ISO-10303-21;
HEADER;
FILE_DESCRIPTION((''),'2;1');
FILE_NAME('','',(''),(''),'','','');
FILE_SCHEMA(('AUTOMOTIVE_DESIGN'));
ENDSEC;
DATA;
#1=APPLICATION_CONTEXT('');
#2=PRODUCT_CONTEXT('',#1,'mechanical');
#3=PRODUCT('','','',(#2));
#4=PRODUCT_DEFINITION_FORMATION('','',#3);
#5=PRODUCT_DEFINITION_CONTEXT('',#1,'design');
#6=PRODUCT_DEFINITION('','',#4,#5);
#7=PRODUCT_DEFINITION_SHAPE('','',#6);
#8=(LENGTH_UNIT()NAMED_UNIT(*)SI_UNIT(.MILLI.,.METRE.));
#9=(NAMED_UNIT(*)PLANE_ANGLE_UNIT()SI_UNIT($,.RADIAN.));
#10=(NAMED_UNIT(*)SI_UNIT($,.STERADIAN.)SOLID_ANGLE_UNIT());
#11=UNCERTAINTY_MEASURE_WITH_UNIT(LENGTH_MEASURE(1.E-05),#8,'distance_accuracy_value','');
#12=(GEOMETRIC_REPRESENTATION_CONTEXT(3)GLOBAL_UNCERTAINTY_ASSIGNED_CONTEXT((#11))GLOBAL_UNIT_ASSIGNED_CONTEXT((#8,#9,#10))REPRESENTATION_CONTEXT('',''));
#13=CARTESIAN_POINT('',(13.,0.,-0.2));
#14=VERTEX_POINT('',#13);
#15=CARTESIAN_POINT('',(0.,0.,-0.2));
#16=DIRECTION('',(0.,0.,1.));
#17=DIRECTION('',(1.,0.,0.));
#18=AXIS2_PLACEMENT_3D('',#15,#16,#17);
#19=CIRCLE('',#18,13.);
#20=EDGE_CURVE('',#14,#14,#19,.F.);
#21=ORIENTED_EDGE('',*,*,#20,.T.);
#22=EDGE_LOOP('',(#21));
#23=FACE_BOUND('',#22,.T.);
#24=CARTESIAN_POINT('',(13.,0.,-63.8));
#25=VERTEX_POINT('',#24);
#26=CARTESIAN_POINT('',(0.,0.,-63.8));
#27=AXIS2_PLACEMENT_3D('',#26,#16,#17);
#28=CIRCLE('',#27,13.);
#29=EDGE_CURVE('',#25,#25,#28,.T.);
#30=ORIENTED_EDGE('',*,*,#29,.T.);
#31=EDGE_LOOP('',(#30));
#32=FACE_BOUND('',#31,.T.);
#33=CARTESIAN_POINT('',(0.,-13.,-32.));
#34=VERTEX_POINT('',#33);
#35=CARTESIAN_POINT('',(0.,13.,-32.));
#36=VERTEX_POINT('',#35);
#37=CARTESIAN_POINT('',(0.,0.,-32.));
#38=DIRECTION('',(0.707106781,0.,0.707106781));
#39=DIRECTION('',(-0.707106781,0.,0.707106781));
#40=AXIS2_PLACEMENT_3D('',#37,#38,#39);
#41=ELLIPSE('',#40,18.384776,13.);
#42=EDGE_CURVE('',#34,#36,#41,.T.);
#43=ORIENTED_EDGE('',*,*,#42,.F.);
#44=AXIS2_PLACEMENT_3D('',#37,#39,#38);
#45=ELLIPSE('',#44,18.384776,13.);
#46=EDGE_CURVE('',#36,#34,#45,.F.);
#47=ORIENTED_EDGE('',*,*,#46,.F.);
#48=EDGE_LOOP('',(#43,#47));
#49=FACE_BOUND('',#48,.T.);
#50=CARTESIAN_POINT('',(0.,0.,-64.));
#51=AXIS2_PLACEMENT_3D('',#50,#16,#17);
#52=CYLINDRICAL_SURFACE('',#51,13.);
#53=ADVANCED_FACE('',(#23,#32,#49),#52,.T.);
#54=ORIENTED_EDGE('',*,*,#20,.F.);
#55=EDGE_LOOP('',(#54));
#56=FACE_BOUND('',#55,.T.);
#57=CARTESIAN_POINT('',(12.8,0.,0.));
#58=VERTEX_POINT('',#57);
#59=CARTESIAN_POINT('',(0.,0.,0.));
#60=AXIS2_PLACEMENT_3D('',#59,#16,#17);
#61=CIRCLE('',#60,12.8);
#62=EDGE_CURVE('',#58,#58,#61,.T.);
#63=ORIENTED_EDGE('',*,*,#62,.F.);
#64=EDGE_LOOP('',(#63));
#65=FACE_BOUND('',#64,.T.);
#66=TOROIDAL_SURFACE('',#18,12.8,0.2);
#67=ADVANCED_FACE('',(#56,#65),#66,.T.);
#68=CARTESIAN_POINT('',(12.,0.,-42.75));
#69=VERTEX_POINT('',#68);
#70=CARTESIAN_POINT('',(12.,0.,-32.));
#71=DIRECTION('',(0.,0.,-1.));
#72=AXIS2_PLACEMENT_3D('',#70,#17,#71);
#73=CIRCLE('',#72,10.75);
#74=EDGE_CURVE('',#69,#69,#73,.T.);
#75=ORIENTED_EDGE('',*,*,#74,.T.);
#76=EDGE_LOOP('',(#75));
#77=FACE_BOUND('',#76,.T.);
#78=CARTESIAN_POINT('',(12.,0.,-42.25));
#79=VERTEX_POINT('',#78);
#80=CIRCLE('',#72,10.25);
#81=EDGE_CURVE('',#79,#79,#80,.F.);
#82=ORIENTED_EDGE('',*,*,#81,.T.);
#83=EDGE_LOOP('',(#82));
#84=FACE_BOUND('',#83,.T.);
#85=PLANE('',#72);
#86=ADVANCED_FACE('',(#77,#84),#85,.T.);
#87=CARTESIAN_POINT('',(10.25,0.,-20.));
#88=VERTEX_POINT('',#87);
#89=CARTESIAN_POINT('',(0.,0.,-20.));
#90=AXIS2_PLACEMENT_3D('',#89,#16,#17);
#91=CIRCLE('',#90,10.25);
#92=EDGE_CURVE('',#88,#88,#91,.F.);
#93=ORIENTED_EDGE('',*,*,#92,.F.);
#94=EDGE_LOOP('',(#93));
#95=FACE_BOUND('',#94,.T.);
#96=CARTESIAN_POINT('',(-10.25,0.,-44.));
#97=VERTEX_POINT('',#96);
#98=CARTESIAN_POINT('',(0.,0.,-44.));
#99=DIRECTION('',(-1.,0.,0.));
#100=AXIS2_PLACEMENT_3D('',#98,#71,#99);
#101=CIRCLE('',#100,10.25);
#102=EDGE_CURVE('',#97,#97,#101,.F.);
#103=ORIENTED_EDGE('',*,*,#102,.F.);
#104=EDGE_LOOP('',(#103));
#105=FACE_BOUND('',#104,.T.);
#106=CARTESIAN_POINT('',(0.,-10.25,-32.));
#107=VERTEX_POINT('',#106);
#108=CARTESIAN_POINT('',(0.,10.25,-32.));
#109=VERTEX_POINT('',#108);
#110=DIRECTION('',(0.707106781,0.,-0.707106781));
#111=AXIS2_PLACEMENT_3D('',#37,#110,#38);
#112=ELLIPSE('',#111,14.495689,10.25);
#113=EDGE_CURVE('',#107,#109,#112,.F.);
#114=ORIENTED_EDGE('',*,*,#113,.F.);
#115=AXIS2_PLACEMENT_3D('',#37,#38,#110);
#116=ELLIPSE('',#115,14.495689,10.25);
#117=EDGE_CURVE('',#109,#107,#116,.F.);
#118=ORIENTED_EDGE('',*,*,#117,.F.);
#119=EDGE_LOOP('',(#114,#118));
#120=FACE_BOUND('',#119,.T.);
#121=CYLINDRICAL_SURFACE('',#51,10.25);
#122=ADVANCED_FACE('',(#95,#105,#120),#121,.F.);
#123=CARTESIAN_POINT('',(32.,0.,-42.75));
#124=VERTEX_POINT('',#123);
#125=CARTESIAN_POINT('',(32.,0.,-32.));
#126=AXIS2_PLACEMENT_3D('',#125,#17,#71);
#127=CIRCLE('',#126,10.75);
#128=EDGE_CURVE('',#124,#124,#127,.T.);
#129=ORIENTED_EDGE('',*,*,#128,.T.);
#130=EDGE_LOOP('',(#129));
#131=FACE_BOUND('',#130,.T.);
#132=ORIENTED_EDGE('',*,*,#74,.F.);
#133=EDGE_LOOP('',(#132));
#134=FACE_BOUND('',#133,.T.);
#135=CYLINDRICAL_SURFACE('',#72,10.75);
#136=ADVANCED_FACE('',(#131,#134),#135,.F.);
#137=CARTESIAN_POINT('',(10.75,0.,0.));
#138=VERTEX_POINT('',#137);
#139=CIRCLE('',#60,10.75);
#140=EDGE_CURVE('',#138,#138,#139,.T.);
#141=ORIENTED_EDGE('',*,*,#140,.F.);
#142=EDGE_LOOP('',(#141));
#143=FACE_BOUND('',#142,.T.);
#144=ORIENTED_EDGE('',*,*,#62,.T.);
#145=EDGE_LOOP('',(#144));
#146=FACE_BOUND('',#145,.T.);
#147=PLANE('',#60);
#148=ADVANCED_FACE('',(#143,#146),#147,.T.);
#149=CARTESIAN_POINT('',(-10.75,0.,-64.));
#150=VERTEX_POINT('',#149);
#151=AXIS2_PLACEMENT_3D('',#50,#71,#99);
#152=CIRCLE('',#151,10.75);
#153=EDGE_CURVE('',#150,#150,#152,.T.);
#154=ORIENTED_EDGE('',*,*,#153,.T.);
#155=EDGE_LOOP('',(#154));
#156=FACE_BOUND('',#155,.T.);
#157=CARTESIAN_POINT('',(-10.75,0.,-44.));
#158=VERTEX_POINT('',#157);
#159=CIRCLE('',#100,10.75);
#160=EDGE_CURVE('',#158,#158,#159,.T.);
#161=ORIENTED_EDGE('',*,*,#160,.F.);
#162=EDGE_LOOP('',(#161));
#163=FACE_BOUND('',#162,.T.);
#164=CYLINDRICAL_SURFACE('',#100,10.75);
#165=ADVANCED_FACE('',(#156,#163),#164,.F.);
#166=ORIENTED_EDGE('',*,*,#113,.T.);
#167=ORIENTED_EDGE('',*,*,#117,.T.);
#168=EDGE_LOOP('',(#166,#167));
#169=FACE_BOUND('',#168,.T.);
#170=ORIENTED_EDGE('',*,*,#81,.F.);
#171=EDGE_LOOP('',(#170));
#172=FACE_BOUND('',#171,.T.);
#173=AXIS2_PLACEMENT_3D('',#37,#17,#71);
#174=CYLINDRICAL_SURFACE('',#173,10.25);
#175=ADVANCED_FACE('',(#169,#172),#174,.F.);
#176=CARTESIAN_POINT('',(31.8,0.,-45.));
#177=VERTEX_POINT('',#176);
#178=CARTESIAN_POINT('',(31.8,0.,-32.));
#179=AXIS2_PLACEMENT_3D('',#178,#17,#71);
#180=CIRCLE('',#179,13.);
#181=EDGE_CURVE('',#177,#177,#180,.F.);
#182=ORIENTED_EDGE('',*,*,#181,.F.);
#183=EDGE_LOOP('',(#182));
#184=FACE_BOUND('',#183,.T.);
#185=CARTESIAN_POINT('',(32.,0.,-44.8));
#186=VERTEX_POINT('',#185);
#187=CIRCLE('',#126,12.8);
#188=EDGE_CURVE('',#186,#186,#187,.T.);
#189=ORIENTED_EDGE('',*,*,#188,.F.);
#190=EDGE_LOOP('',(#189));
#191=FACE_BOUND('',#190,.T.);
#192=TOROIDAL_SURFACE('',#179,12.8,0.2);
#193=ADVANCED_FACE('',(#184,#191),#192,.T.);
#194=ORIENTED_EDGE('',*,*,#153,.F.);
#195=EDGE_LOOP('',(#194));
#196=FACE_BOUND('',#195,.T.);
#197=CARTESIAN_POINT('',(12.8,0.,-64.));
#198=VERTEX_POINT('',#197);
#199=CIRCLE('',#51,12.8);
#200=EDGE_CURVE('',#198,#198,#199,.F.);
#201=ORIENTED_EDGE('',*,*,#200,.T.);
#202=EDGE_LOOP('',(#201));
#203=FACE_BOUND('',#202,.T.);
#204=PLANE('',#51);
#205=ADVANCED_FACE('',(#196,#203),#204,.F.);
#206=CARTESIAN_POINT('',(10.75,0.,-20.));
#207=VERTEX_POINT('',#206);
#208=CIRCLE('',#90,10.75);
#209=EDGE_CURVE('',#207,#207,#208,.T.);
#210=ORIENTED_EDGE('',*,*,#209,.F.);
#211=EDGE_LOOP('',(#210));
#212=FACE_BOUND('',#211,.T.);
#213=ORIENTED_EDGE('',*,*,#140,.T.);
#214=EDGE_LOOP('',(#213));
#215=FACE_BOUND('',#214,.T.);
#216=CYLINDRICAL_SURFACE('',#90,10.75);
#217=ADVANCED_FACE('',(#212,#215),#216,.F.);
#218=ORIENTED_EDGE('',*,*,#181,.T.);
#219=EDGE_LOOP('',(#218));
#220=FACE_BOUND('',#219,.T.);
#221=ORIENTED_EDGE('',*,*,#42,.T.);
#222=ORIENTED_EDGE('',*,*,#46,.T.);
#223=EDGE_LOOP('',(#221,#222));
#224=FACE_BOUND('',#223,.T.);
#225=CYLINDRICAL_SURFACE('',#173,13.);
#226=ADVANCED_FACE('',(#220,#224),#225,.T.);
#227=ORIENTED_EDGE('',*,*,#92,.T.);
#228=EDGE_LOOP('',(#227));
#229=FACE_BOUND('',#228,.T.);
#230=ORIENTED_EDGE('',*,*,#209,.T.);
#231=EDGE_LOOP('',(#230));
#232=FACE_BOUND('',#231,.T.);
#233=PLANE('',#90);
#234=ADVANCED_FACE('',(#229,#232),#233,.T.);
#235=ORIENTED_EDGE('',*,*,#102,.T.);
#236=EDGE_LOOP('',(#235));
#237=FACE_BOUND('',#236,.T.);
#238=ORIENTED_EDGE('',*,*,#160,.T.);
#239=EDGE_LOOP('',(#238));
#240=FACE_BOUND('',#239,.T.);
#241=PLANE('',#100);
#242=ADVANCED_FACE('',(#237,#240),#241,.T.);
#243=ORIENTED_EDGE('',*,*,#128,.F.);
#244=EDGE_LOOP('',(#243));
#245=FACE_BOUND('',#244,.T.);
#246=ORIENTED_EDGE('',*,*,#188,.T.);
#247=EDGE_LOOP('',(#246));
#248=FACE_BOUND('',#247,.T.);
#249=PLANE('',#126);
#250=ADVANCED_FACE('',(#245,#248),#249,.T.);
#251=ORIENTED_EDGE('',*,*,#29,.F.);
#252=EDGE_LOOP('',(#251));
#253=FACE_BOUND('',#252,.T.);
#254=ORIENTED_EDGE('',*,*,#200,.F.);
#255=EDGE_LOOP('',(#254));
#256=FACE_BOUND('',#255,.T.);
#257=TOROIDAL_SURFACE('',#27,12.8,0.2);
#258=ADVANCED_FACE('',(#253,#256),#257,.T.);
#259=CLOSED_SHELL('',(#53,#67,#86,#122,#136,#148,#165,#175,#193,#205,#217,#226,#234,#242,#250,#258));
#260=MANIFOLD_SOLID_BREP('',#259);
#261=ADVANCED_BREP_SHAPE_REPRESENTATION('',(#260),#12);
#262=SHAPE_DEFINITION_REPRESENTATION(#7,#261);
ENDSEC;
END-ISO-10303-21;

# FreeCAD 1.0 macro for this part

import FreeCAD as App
import Part
import Sketcher
from FreeCAD import Vector
Q = App.Units.Quantity


def edges_at(feature, points):
    """Names of the edges that pass closest to the given points."""
    edges = feature.Shape.Edges
    near = lambda p: min(range(len(edges)), key=lambda i: edges[i].distToShape(Part.Vertex(*p))[0])
    return sorted({f"Edge{near(p) + 1}" for p in points})

doc = App.newDocument("Part")
body = doc.addObject("PartDesign::Body", "Body")

sketch1 = body.newObject("Sketcher::SketchObject", "Sketch")
sketch1.AttachmentSupport = (doc.getObject("XY_Plane"), [""])
sketch1.MapMode = "FlatFace"
sketch1.addGeometry([
    Part.Circle(Vector(0, 0, 0), Vector(0, 0, 1), 13),
    Part.Circle(Vector(0, 0, 0), Vector(0, 0, 1), 10),
], False)
sketch1.addConstraint([
    Sketcher.Constraint("Coincident", 0, 3, -1, 1),
    Sketcher.Constraint("Coincident", 1, 3, -1, 1),
    Sketcher.Constraint("Diameter", 0, Q("26 mm")),
    Sketcher.Constraint("Diameter", 1, Q("20.5 mm")),
])
pad1 = body.newObject("PartDesign::Pad", "Pad")
pad1.Profile = sketch1
pad1.Length = 64
pad1.Reversed = True

sketch2 = body.newObject("Sketcher::SketchObject", "Sketch001")
sketch2.AttachmentSupport = (doc.getObject("YZ_Plane"), [""])
sketch2.MapMode = "FlatFace"
sketch2.AttachmentOffset = App.Placement(Vector(0, 0, 32), App.Rotation())
sketch2.addGeometry(Part.Circle(Vector(0, -32, 0), Vector(0, 0, 1), 13), False)
sketch2.addConstraint([
    Sketcher.Constraint("PointOnObject", 0, 3, -2),
    Sketcher.Constraint("Diameter", 0, Q("26 mm")),
    Sketcher.Constraint("DistanceY", 0, 3, -1, 1, Q("32 mm")),
])
pad2 = body.newObject("PartDesign::Pad", "Pad001")
pad2.Profile = sketch2
pad2.Length = 32
pad2.Reversed = True

sketch3 = body.newObject("Sketcher::SketchObject", "Sketch002")
sketch3.AttachmentSupport = (doc.getObject("YZ_Plane"), [""])
sketch3.MapMode = "FlatFace"
sketch3.AttachmentOffset = App.Placement(Vector(0, 0, 32), App.Rotation())
sketch3.addGeometry(Part.Circle(Vector(0, -32, 0), Vector(0, 0, 1), 10), False)
sketch3.addConstraint([
    Sketcher.Constraint("PointOnObject", 0, 3, -2),
    Sketcher.Constraint("Diameter", 0, Q("20.5 mm")),
    Sketcher.Constraint("DistanceY", 0, 3, -1, 1, Q("32 mm")),
])
pocket1 = body.newObject("PartDesign::Pocket", "Pocket")
pocket1.Profile = sketch3
pocket1.Length = 32

sketch4 = body.newObject("Sketcher::SketchObject", "Sketch003")
sketch4.AttachmentSupport = (doc.getObject("XY_Plane"), [""])
sketch4.MapMode = "FlatFace"
sketch4.addGeometry(Part.Circle(Vector(0, 0, 0), Vector(0, 0, 1), 10), False)
sketch4.addConstraint([
    Sketcher.Constraint("Coincident", 0, 3, -1, 1),
    Sketcher.Constraint("Diameter", 0, Q("20.5 mm")),
])
pocket2 = body.newObject("PartDesign::Pocket", "Pocket001")
pocket2.Profile = sketch4
pocket2.Length = 78

sketch5 = body.newObject("Sketcher::SketchObject", "Sketch004")
sketch5.AttachmentSupport = (doc.getObject("XY_Plane"), [""])
sketch5.MapMode = "FlatFace"
sketch5.addGeometry(Part.Circle(Vector(0, 0, 0), Vector(0, 0, 1), 11), False)
sketch5.addConstraint([
    Sketcher.Constraint("Coincident", 0, 3, -1, 1),
    Sketcher.Constraint("Diameter", 0, Q("21.5 mm")),
])
pocket3 = body.newObject("PartDesign::Pocket", "Pocket002")
pocket3.Profile = sketch5
pocket3.Length = 20

sketch6 = body.newObject("Sketcher::SketchObject", "Sketch005")
sketch6.AttachmentSupport = (doc.getObject("XY_Plane"), [""])
sketch6.MapMode = "FlatFace"
sketch6.AttachmentOffset = App.Placement(Vector(0, 0, -44), App.Rotation())
sketch6.addGeometry(Part.Circle(Vector(0, 0, 0), Vector(0, 0, 1), 11), False)
sketch6.addConstraint([
    Sketcher.Constraint("Coincident", 0, 3, -1, 1),
    Sketcher.Constraint("Diameter", 0, Q("21.5 mm")),
])
pocket4 = body.newObject("PartDesign::Pocket", "Pocket003")
pocket4.Profile = sketch6
pocket4.Length = 20

sketch7 = body.newObject("Sketcher::SketchObject", "Sketch006")
sketch7.AttachmentSupport = (doc.getObject("YZ_Plane"), [""])
sketch7.MapMode = "FlatFace"
sketch7.AttachmentOffset = App.Placement(Vector(0, 0, 32), App.Rotation())
sketch7.addGeometry(Part.Circle(Vector(0, -32, 0), Vector(0, 0, 1), 11), False)
sketch7.addConstraint([
    Sketcher.Constraint("PointOnObject", 0, 3, -2),
    Sketcher.Constraint("Diameter", 0, Q("21.5 mm")),
    Sketcher.Constraint("DistanceY", 0, 3, -1, 1, Q("32 mm")),
])
pocket5 = body.newObject("PartDesign::Pocket", "Pocket004")
pocket5.Profile = sketch7
pocket5.Length = 20
doc.recompute()

fillet = body.newObject("PartDesign::Fillet", "Fillet")
fillet.Base = (pocket5, edges_at(pocket5, [(32, 0, -19), (-13, 0, 0), (-13, 0, -64)]))
fillet.Radius = 0.2

doc.recompute()
